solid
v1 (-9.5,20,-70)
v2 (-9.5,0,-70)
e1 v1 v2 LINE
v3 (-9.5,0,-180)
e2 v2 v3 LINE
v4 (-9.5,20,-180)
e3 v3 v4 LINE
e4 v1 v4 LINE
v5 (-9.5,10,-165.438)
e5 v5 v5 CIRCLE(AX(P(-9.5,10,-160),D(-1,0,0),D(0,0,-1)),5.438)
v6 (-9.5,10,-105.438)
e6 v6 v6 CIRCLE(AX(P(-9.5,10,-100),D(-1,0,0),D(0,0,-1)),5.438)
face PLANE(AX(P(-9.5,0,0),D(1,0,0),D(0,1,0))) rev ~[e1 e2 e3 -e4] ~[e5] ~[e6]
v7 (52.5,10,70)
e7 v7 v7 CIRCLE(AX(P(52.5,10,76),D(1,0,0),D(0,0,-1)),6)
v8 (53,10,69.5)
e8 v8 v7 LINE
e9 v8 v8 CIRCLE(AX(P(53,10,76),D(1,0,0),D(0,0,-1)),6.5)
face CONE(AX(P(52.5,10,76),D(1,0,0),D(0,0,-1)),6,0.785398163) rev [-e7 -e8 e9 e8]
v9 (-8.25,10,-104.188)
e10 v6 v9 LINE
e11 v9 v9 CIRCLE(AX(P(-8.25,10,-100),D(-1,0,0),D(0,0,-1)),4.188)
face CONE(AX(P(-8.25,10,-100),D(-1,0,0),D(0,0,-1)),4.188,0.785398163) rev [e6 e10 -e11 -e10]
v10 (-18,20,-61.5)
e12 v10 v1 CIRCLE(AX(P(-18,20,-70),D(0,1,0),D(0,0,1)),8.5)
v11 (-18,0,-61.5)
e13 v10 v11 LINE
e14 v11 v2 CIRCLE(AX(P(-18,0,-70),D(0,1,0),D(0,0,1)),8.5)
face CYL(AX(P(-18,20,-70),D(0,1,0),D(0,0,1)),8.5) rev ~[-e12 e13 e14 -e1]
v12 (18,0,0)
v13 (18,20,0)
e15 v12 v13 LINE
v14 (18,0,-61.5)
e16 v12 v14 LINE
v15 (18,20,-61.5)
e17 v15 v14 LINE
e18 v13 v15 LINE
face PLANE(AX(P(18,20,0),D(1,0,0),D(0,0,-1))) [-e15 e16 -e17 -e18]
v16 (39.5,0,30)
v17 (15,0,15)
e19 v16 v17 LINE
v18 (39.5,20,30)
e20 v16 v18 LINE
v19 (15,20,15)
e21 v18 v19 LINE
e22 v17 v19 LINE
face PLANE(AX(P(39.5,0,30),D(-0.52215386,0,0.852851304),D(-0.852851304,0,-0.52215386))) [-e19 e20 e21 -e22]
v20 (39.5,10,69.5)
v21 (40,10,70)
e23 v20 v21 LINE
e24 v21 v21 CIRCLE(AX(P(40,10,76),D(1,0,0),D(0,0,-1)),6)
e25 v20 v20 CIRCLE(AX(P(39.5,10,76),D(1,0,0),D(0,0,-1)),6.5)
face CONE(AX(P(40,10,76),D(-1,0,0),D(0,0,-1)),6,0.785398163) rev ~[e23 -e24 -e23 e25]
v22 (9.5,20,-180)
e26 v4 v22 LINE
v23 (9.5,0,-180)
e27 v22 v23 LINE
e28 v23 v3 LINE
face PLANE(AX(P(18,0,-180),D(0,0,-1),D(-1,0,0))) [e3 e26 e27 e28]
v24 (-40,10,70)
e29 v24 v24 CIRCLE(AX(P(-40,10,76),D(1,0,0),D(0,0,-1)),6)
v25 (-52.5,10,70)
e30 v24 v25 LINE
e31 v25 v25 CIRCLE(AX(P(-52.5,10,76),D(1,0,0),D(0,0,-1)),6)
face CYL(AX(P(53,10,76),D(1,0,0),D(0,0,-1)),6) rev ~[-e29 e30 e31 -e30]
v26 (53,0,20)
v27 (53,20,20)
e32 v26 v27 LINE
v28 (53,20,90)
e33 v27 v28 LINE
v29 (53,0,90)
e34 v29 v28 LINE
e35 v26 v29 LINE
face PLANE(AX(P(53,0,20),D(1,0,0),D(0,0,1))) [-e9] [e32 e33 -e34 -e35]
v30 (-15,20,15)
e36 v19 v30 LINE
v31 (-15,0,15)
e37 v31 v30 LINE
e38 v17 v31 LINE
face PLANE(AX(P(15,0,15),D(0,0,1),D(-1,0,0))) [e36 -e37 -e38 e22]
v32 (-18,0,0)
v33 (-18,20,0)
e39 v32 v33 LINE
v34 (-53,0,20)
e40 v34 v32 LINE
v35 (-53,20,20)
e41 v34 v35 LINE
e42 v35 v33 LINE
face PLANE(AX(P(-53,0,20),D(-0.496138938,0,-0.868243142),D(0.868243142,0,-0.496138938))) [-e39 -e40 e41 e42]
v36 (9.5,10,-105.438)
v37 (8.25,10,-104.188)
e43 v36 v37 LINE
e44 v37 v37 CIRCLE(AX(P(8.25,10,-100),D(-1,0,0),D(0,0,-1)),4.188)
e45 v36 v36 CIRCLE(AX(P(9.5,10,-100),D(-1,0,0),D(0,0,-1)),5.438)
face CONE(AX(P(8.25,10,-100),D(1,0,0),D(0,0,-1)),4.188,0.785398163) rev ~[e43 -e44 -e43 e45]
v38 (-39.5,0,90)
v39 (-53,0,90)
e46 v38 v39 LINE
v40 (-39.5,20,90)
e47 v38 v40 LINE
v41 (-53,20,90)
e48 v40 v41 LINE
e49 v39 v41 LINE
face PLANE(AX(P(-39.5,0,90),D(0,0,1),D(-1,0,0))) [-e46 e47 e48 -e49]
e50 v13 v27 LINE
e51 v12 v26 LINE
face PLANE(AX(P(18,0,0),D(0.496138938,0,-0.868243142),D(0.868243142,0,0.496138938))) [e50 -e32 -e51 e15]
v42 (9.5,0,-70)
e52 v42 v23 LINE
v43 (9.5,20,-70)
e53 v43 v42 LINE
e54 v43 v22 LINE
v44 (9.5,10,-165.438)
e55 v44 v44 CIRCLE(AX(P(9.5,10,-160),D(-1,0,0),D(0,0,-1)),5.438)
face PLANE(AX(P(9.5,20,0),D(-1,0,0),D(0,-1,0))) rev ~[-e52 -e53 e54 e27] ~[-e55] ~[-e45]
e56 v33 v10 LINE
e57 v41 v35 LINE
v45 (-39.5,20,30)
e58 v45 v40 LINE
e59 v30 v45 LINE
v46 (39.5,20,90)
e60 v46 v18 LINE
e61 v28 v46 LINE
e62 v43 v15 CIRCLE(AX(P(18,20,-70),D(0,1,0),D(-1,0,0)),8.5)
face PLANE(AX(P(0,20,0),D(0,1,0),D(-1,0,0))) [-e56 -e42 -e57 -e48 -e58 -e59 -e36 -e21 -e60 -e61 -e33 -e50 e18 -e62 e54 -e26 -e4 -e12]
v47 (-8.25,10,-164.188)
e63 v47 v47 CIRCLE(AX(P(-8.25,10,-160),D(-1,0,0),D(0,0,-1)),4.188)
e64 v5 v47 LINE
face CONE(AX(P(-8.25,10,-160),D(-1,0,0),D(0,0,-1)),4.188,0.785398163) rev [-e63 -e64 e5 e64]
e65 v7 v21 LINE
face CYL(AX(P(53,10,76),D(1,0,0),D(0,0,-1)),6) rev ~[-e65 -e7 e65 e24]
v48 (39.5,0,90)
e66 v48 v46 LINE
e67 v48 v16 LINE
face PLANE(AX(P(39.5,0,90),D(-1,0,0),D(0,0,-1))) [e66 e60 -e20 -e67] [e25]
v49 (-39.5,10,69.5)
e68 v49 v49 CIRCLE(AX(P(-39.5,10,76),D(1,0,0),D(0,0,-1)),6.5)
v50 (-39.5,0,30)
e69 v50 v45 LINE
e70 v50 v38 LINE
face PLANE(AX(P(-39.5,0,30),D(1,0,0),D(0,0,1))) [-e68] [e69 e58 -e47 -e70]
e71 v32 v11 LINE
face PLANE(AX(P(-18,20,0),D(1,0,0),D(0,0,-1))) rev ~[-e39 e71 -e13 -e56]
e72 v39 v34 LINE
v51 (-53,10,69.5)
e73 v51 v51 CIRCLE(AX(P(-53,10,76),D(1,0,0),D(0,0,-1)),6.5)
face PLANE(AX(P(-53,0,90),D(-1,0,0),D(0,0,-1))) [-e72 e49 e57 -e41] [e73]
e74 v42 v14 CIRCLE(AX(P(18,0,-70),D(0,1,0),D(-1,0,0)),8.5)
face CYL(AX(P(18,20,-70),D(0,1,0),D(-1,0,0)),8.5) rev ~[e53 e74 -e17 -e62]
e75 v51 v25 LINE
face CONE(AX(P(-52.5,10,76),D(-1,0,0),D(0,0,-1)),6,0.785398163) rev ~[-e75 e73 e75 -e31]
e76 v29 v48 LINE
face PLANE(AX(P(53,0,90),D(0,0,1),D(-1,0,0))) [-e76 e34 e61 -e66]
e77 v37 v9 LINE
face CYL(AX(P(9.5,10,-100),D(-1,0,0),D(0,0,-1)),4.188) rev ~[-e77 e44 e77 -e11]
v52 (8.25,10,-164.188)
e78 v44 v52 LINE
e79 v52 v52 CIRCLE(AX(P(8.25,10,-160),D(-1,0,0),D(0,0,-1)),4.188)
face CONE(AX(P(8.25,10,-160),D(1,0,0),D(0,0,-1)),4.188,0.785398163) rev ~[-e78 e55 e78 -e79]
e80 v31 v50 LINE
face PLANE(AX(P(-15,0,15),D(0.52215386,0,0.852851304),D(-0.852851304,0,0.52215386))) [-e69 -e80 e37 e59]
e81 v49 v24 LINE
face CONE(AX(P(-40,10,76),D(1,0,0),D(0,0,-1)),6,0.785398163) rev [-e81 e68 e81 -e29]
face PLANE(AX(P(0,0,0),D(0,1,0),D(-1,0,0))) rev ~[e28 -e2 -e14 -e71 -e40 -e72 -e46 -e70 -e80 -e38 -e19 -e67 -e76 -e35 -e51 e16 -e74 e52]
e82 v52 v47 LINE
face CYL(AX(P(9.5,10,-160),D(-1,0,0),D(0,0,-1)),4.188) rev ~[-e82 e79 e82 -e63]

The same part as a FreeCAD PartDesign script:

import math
import FreeCAD as App
import Part
import Sketcher
from FreeCAD import Vector


def edges_at(feature, points):
    """Names of the edges that pass closest to the given points."""
    edges = feature.Shape.Edges
    near = lambda p: min(range(len(edges)), key=lambda i: edges[i].distToShape(Part.Vertex(*p))[0])
    return sorted({f"Edge{near(p) + 1}" for p in points})

doc = App.newDocument("Part")
params = doc.addObject("Spreadsheet::Sheet", "Params")
for row, (alias, value) in enumerate([
    ("sketch1_height", "70 mm"),
    ("sketch1_height2", "60 mm"),
    ("sketch1_width", "13.5 mm"),
    ("pad1_length", "20 mm"),
    ("sketch2_width", "19 mm"),
    ("sketch2_height", "20 mm"),
    ("pad2_length", "180 mm"),
    ("sketch3_diameter", "12 mm"),
    ("hole_diameter", "8.376 mm"),
    ("sketch5_height", "70 mm"),
    ("sketch5_radius", "8.5 mm"),
    ("pad3_length", "20 mm"),
    ("chamfer_size", "1.25 mm"),
    ("chamfer2_size", "0.5 mm"),
], start=1):
    params.set(f"A{row}", alias)
    params.set(f"B{row}", "=" + value)
    params.setAlias(f"B{row}", alias)

body = doc.addObject("PartDesign::Body", "Body")

sketch1 = doc.addObject("Sketcher::SketchObject", "Sketch")
body.addObject(sketch1)
sketch1.AttachmentSupport = (doc.XZ_Plane, [""])
sketch1.MapMode = "FlatFace"
sketch1.addGeometry(Part.LineSegment(Vector(-53, 20, 0), Vector(-53, 90, 0)), False)
sketch1.addGeometry(Part.LineSegment(Vector(-53, 90, 0), Vector(-40, 90, 0)), False)
sketch1.addGeometry(Part.LineSegment(Vector(-40, 90, 0), Vector(-40, 30, 0)), False)
sketch1.addGeometry(Part.LineSegment(Vector(-40, 30, 0), Vector(-15, 15, 0)), False)
sketch1.addGeometry(Part.LineSegment(Vector(-15, 15, 0), Vector(15, 15, 0)), False)
sketch1.addGeometry(Part.LineSegment(Vector(15, 15, 0), Vector(40, 30, 0)), False)
sketch1.addGeometry(Part.LineSegment(Vector(40, 30, 0), Vector(40, 90, 0)), False)
sketch1.addGeometry(Part.LineSegment(Vector(40, 90, 0), Vector(53, 90, 0)), False)
sketch1.addGeometry(Part.LineSegment(Vector(53, 90, 0), Vector(53, 20, 0)), False)
sketch1.addGeometry(Part.LineSegment(Vector(53, 20, 0), Vector(18, 0, 0)), False)
sketch1.addGeometry(Part.LineSegment(Vector(18, 0, 0), Vector(-18, 0, 0)), False)
sketch1.addGeometry(Part.LineSegment(Vector(-18, 0, 0), Vector(-53, 20, 0)), False)
sketch1.addConstraint(Sketcher.Constraint("Coincident", 0, 2, 1, 1))
sketch1.addConstraint(Sketcher.Constraint("Coincident", 1, 2, 2, 1))
sketch1.addConstraint(Sketcher.Constraint("Coincident", 2, 2, 3, 1))
sketch1.addConstraint(Sketcher.Constraint("Coincident", 3, 2, 4, 1))
sketch1.addConstraint(Sketcher.Constraint("Coincident", 4, 2, 5, 1))
sketch1.addConstraint(Sketcher.Constraint("Coincident", 5, 2, 6, 1))
sketch1.addConstraint(Sketcher.Constraint("Coincident", 6, 2, 7, 1))
sketch1.addConstraint(Sketcher.Constraint("Coincident", 7, 2, 8, 1))
sketch1.addConstraint(Sketcher.Constraint("Coincident", 8, 2, 9, 1))
sketch1.addConstraint(Sketcher.Constraint("Coincident", 9, 2, 10, 1))
sketch1.addConstraint(Sketcher.Constraint("Coincident", 10, 2, 11, 1))
sketch1.addConstraint(Sketcher.Constraint("Coincident", 11, 2, 0, 1))
sketch1.addConstraint(Sketcher.Constraint("Vertical", 0))
sketch1.addConstraint(Sketcher.Constraint("Horizontal", 1))
sketch1.addConstraint(Sketcher.Constraint("Vertical", 2))
sketch1.addConstraint(Sketcher.Constraint("Horizontal", 4))
sketch1.addConstraint(Sketcher.Constraint("Vertical", 6))
sketch1.addConstraint(Sketcher.Constraint("Horizontal", 7))
sketch1.addConstraint(Sketcher.Constraint("Vertical", 8))
sketch1.addConstraint(Sketcher.Constraint("Horizontal", 10))
sketch1.addConstraint(Sketcher.Constraint("Symmetric", 9, 2, 10, 2, -1, 1))
sketch1.addConstraint(Sketcher.Constraint("Symmetric", 2, 2, 5, 2, -2))
sketch1.addConstraint(Sketcher.Constraint("Symmetric", 0, 2, 7, 2, -2))
sketch1.addConstraint(Sketcher.Constraint("Horizontal", 8, 2, 11, 2))
sketch1.addConstraint(Sketcher.Constraint("Equal", 3, 5))
sketch1.addConstraint(Sketcher.Constraint("DistanceY", 0, 1, 0, 2, 70.0))
sketch1.addConstraint(Sketcher.Constraint("DistanceY", 2, 2, 2, 1, 60.0))
sketch1.addConstraint(Sketcher.Constraint("DistanceX", 1, 1, 1, 2, 13.5))
sketch1.addConstraint(Sketcher.Constraint("DistanceY", -1, 1, 0, 2, 90.0))
sketch1.addConstraint(Sketcher.Constraint("DistanceX", 3, 2, -1, 1, 15.0))
sketch1.addConstraint(Sketcher.Constraint("DistanceY", -1, 1, 3, 2, 15.0))
sketch1.addConstraint(Sketcher.Constraint("DistanceX", -1, 1, 9, 2, 18.0))
sketch1.addConstraint(Sketcher.Constraint("DistanceX", 2, 2, 5, 2, 79.0))
sketch1.setExpression("Constraints[25]", "Params.sketch1_height")
sketch1.setExpression("Constraints[26]", "Params.sketch1_height2")
sketch1.setExpression("Constraints[27]", "Params.sketch1_width")
pad1 = doc.addObject("PartDesign::Pad", "Pad")
body.addObject(pad1)
pad1.Profile = sketch1
pad1.setExpression("Length", "Params.pad1_length")
pad1.Reversed = True

sketch2 = doc.addObject("Sketcher::SketchObject", "Sketch001")
body.addObject(sketch2)
sketch2.AttachmentSupport = (doc.XY_Plane, [""])
sketch2.MapMode = "FlatFace"
sketch2.addGeometry(Part.LineSegment(Vector(10, 20, 0), Vector(10, 0, 0)), False)
sketch2.addGeometry(Part.LineSegment(Vector(10, 0, 0), Vector(-10, 0, 0)), False)
sketch2.addGeometry(Part.LineSegment(Vector(-10, 0, 0), Vector(-10, 20, 0)), False)
sketch2.addGeometry(Part.LineSegment(Vector(-10, 20, 0), Vector(10, 20, 0)), False)
sketch2.addConstraint(Sketcher.Constraint("Coincident", 0, 2, 1, 1))
sketch2.addConstraint(Sketcher.Constraint("Coincident", 1, 2, 2, 1))
sketch2.addConstraint(Sketcher.Constraint("Coincident", 2, 2, 3, 1))
sketch2.addConstraint(Sketcher.Constraint("Coincident", 3, 2, 0, 1))
sketch2.addConstraint(Sketcher.Constraint("Vertical", 0))
sketch2.addConstraint(Sketcher.Constraint("Horizontal", 1))
sketch2.addConstraint(Sketcher.Constraint("Vertical", 2))
sketch2.addConstraint(Sketcher.Constraint("Horizontal", 3))
sketch2.addConstraint(Sketcher.Constraint("Symmetric", 0, 2, 1, 2, -1, 1))
sketch2.addConstraint(Sketcher.Constraint("DistanceX", 1, 2, 1, 1, 19.0))
sketch2.addConstraint(Sketcher.Constraint("DistanceY", 0, 2, 0, 1, 20.0))
sketch2.setExpression("Constraints[9]", "Params.sketch2_width")
sketch2.setExpression("Constraints[10]", "Params.sketch2_height")
pad2 = doc.addObject("PartDesign::Pad", "Pad001")
body.addObject(pad2)
pad2.Profile = sketch2
pad2.setExpression("Length", "Params.pad2_length")
pad2.Reversed = True

sketch3 = doc.addObject("Sketcher::SketchObject", "Sketch002")
body.addObject(sketch3)
sketch3.AttachmentSupport = (doc.YZ_Plane, [""])
sketch3.MapMode = "FlatFace"
sketch3.AttachmentOffset = App.Placement(Vector(0, 0, 53), App.Rotation())
sketch3.addGeometry(Part.Circle(Vector(10, 76, 0), Vector(0, 0, 1), 6), False)
sketch3.addConstraint(Sketcher.Constraint("Diameter", 0, 12.0))
sketch3.addConstraint(Sketcher.Constraint("DistanceX", -1, 1, 0, 3, 10.0))
sketch3.addConstraint(Sketcher.Constraint("DistanceY", -1, 1, 0, 3, 76.0))
sketch3.setExpression("Constraints[0]", "Params.sketch3_diameter")
pocket1 = doc.addObject("PartDesign::Pocket", "Pocket")
body.addObject(pocket1)
pocket1.Profile = sketch3
pocket1.Type = "ThroughAll"

sketch4 = doc.addObject("Sketcher::SketchObject", "Sketch003")
body.addObject(sketch4)
sketch4.AttachmentSupport = (doc.YZ_Plane, [""])
sketch4.MapMode = "FlatFace"
sketch4.AttachmentOffset = App.Placement(Vector(0, 0, 9.5), App.Rotation())
sketch4.addGeometry(Part.Circle(Vector(10, -100, 0), Vector(0, 0, 1), 4.2), False)
sketch4.addGeometry(Part.Circle(Vector(10, -160, 0), Vector(0, 0, 1), 4.2), False)
sketch4.addConstraint(Sketcher.Constraint("Equal", 0, 1))
sketch4.addConstraint(Sketcher.Constraint("Vertical", 0, 3, 1, 3))
sketch4.addConstraint(Sketcher.Constraint("Diameter", 0, 8.376))
sketch4.addConstraint(Sketcher.Constraint("DistanceX", -1, 1, 0, 3, 10.0))
sketch4.addConstraint(Sketcher.Constraint("DistanceY", 0, 3, -1, 1, 100.0))
sketch4.addConstraint(Sketcher.Constraint("DistanceY", 1, 3, -1, 1, 160.0))
doc.recompute()
hole = doc.addObject("PartDesign::Hole", "Hole")
body.addObject(hole)
hole.Profile = sketch4
hole.ThreadType = "None"
hole.setExpression("Diameter", "Params.hole_diameter")
hole.DepthType = "ThroughAll"

sketch5 = doc.addObject("Sketcher::SketchObject", "Sketch004")
body.addObject(sketch5)
sketch5.AttachmentSupport = (doc.XZ_Plane, [""])
sketch5.MapMode = "FlatFace"
sketch5.AttachmentOffset = App.Placement(Vector(0, 0, -20), App.Rotation())
sketch5.addGeometry(Part.LineSegment(Vector(10, -70, 0), Vector(10, 0, 0)), False)
sketch5.addGeometry(Part.LineSegment(Vector(10, 0, 0), Vector(18, 0, 0)), False)
sketch5.addGeometry(Part.LineSegment(Vector(18, 0, 0), Vector(18, -62, 0)), False)
sketch5.addGeometry(Part.ArcOfCircle(Part.Circle(Vector(18, -70, 0), Vector(0, 0, 1), 8), math.radians(90), math.radians(180)), False)
sketch5.addGeometry(Part.LineSegment(Vector(-18, 0, 0), Vector(-10, 0, 0)), False)
sketch5.addGeometry(Part.LineSegment(Vector(-10, 0, 0), Vector(-10, -70, 0)), False)
sketch5.addGeometry(Part.ArcOfCircle(Part.Circle(Vector(-18, -70, 0), Vector(0, 0, 1), 8), math.radians(0), math.radians(90)), False)
sketch5.addGeometry(Part.LineSegment(Vector(-18, -62, 0), Vector(-18, 0, 0)), False)
sketch5.addConstraint(Sketcher.Constraint("Coincident", 0, 2, 1, 1))
sketch5.addConstraint(Sketcher.Constraint("Coincident", 1, 2, 2, 1))
sketch5.addConstraint(Sketcher.Constraint("Coincident", 2, 2, 3, 1))
sketch5.addConstraint(Sketcher.Constraint("Tangent", 3, 2, 0, 1))
sketch5.addConstraint(Sketcher.Constraint("Coincident", 4, 2, 5, 1))
sketch5.addConstraint(Sketcher.Constraint("Tangent", 5, 2, 6, 1))
sketch5.addConstraint(Sketcher.Constraint("Coincident", 6, 2, 7, 1))
sketch5.addConstraint(Sketcher.Constraint("Coincident", 7, 2, 4, 1))
sketch5.addConstraint(Sketcher.Constraint("Vertical", 0))
sketch5.addConstraint(Sketcher.Constraint("Horizontal", 1))
sketch5.addConstraint(Sketcher.Constraint("Vertical", 2))
sketch5.addConstraint(Sketcher.Constraint("Horizontal", 4))
sketch5.addConstraint(Sketcher.Constraint("Vertical", 5))
sketch5.addConstraint(Sketcher.Constraint("Vertical", 7))
sketch5.addConstraint(Sketcher.Constraint("Equal", 3, 6))
sketch5.addConstraint(Sketcher.Constraint("Symmetric", 0, 2, 4, 2, -1, 1))
sketch5.addConstraint(Sketcher.Constraint("Symmetric", 2, 2, 6, 2, -2))
sketch5.addConstraint(Sketcher.Constraint("PointOnObject", 0, 2, -1))
sketch5.addConstraint(Sketcher.Constraint("Vertical", 3, 3, 1, 2))
sketch5.addConstraint(Sketcher.Constraint("DistanceY", 0, 1, 0, 2, 70.0))
sketch5.addConstraint(Sketcher.Constraint("Radius", 3, 8.5))
sketch5.addConstraint(Sketcher.Constraint("DistanceX", -1, 1, 3, 3, 18.0))
sketch5.setExpression("Constraints[19]", "Params.sketch5_height")
sketch5.setExpression("Constraints[20]", "Params.sketch5_radius")
pad3 = doc.addObject("PartDesign::Pad", "Pad002")
body.addObject(pad3)
pad3.Profile = sketch5
pad3.setExpression("Length", "Params.pad3_length")
doc.recompute()

chamfer = doc.addObject("PartDesign::Chamfer", "Chamfer")
body.addObject(chamfer)
chamfer.Base = (pad3, edges_at(pad3, [
    (9.5, 10, -155.812),
    (9.5, 10, -95.812),
    (-9.5, 10, -155.812),
    (-9.5, 10, -95.812),
]))
chamfer.setExpression("Size", "Params.chamfer_size")
doc.recompute()

chamfer2 = doc.addObject("PartDesign::Chamfer", "Chamfer001")
body.addObject(chamfer2)
chamfer2.Base = (chamfer, edges_at(chamfer, [
    (53, 10, 82),
    (39.5, 10, 82),
    (-53, 10, 82),
    (-39.5, 10, 82),
]))
chamfer2.setExpression("Size", "Params.chamfer2_size")

doc.recompute()
